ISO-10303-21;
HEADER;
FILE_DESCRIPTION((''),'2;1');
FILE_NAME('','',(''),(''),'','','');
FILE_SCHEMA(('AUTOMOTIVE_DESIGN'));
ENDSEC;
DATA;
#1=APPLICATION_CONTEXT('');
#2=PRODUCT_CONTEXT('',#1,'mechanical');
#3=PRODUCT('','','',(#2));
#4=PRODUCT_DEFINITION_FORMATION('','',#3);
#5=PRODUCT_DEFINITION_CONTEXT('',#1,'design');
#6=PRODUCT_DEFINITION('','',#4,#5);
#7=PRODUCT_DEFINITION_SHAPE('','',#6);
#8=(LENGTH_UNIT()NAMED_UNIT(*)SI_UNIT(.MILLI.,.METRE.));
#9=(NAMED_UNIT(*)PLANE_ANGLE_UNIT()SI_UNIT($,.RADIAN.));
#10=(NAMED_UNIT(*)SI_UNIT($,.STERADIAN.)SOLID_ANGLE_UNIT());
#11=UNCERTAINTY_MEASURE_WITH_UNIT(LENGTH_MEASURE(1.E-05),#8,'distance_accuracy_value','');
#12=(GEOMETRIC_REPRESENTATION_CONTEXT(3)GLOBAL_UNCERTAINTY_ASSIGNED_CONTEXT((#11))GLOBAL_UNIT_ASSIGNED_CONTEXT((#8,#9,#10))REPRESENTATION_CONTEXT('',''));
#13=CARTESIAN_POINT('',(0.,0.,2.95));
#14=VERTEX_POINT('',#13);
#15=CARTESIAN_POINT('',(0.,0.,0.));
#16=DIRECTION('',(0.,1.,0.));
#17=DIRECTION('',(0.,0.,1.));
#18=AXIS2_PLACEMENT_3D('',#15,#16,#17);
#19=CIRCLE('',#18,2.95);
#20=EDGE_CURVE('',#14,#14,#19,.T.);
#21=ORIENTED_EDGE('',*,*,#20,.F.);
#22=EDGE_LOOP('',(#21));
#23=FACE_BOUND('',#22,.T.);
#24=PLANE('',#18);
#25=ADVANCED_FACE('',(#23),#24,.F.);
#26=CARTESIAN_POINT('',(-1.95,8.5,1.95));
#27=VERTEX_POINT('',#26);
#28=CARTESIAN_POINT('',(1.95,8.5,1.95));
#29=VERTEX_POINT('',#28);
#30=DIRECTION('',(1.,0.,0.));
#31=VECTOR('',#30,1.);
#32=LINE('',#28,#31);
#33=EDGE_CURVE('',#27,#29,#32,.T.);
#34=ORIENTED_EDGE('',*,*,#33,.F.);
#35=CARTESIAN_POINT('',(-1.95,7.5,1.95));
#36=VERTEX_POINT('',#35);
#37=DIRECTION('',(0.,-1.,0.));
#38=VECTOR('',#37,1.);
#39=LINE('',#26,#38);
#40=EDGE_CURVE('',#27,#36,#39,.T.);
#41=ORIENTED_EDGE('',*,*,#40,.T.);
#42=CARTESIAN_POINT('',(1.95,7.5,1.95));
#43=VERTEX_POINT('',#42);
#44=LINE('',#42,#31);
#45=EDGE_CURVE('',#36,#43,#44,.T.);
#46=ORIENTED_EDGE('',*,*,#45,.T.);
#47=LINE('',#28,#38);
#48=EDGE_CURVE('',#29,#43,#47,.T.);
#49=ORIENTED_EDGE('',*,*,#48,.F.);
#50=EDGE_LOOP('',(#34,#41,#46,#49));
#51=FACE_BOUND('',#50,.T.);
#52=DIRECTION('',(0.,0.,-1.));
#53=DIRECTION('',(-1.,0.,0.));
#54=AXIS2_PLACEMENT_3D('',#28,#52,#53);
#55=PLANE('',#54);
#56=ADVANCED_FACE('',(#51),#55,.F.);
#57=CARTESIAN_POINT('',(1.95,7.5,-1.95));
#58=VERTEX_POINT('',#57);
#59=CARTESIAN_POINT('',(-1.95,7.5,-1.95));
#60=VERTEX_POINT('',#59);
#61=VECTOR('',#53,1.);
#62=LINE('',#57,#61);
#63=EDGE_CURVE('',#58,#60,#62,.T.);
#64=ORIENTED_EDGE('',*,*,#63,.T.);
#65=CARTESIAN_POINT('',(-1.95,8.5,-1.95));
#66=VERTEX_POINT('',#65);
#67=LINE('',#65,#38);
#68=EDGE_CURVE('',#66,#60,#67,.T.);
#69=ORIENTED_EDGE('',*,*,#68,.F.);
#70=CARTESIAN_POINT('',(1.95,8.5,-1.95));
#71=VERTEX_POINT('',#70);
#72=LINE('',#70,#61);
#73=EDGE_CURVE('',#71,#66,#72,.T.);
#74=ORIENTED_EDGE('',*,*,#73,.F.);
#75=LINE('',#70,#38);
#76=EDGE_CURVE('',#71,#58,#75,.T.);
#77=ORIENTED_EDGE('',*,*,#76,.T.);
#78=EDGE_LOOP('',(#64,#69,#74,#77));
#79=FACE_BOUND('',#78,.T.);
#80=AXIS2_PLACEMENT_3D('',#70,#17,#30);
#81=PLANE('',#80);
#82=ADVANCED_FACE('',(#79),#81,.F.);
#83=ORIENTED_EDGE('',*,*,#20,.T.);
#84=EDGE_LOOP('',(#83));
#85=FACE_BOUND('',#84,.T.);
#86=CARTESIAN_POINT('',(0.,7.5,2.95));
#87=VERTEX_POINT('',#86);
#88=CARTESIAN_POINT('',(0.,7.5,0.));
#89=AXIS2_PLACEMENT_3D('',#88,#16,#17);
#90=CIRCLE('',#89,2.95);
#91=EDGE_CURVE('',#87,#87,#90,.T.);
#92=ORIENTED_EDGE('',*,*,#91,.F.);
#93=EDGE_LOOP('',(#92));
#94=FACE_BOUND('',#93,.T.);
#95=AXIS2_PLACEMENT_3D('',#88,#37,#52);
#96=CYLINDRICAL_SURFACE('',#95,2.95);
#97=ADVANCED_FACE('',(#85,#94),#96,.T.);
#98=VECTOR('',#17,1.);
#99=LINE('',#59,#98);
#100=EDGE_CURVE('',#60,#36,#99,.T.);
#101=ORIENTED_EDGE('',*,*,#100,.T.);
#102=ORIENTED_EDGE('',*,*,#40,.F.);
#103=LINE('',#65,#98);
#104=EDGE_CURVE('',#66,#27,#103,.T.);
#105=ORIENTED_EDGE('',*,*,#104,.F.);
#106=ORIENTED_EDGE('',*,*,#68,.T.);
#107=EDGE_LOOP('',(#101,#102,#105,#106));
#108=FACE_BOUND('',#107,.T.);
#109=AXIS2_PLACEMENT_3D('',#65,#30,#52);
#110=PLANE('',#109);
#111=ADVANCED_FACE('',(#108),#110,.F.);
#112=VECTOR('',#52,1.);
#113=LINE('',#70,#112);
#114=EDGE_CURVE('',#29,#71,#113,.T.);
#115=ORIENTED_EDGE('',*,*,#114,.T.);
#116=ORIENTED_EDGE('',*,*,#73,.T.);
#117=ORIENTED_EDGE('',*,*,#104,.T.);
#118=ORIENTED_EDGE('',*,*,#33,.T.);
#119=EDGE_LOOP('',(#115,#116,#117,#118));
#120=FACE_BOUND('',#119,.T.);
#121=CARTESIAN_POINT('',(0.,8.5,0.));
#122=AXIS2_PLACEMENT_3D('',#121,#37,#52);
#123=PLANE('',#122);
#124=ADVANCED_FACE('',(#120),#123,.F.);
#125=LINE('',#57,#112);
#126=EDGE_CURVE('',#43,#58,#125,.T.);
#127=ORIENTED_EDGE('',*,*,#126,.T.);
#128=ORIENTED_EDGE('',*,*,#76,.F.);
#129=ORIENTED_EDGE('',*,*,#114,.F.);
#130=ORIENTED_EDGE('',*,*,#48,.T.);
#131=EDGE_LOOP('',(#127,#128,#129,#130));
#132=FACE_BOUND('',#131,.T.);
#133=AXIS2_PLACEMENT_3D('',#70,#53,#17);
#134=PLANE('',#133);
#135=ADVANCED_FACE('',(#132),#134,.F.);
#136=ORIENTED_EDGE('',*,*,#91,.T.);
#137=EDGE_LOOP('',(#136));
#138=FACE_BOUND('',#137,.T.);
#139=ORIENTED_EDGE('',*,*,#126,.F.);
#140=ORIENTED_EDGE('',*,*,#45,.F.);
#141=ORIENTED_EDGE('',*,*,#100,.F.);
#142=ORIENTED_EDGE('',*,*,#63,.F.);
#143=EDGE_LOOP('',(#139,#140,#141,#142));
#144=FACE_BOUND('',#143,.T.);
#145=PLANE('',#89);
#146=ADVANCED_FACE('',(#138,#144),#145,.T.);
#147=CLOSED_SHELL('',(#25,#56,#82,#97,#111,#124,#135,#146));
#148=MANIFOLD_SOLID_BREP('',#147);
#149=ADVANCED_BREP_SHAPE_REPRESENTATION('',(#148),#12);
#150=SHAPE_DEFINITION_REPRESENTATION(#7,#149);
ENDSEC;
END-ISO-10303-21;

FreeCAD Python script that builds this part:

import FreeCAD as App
import Part
import Sketcher


def add_polygon(sketch, points):
    """Adds a closed chain of lines whose ends are joined by coincident constraints."""
    first, n = sketch.GeometryCount, len(points)
    for a, b in zip(points, points[1:] + points[:1]):
        sketch.addGeometry(Part.LineSegment(App.Vector(*a, 0), App.Vector(*b, 0)), False)
    for i in range(n):
        sketch.addConstraint(Sketcher.Constraint("Coincident", first + i, 2, first + (i + 1) % n, 1))

doc = App.newDocument("Part")
body = doc.addObject("PartDesign::Body", "Body")

# Sketch on XZ plane
sketch1 = body.newObject("Sketcher::SketchObject", "Sketch")
sketch1.AttachmentSupport = (doc.getObject("XZ_Plane"), [""])
sketch1.MapMode = "FlatFace"
sketch1.addGeometry(Part.Circle(App.Vector(0, 0, 0), App.Vector(0, 0, 1), 3), False)
sketch1.addConstraint(Sketcher.Constraint("Coincident", 0, 3, -1, 1))
sketch1.addConstraint(Sketcher.Constraint("Diameter", 0, 5.9))
pad1 = body.newObject("PartDesign::Pad", "Pad")
pad1.Profile = sketch1
pad1.Length = 7.5
pad1.Reversed = True

# Sketch on XZ plane
sketch2 = body.newObject("Sketcher::SketchObject", "Sketch001")
sketch2.AttachmentSupport = (doc.getObject("XZ_Plane"), [""])
sketch2.MapMode = "FlatFace"
sketch2.AttachmentOffset = App.Placement(App.Vector(0, 0, -7.5), App.Rotation())
add_polygon(sketch2, [(-1.9, -1.9), (-1.9, 1.9), (1.9, 1.9), (1.9, -1.9)])  # lines 0-3
sketch2.addConstraint(Sketcher.Constraint("Vertical", 0))
sketch2.addConstraint(Sketcher.Constraint("Horizontal", 1))
sketch2.addConstraint(Sketcher.Constraint("Vertical", 2))
sketch2.addConstraint(Sketcher.Constraint("Horizontal", 3))
sketch2.addConstraint(Sketcher.Constraint("Symmetric", 0, 2, 2, 2, -1, 1))
sketch2.addConstraint(Sketcher.Constraint("Equal", 3, 0))
sketch2.addConstraint(Sketcher.Constraint("DistanceX", 1, 1, 1, 2, 3.9))
pad2 = body.newObject("PartDesign::Pad", "Pad001")
pad2.Profile = sketch2
pad2.Length = 1
pad2.Reversed = True

doc.recompute()
